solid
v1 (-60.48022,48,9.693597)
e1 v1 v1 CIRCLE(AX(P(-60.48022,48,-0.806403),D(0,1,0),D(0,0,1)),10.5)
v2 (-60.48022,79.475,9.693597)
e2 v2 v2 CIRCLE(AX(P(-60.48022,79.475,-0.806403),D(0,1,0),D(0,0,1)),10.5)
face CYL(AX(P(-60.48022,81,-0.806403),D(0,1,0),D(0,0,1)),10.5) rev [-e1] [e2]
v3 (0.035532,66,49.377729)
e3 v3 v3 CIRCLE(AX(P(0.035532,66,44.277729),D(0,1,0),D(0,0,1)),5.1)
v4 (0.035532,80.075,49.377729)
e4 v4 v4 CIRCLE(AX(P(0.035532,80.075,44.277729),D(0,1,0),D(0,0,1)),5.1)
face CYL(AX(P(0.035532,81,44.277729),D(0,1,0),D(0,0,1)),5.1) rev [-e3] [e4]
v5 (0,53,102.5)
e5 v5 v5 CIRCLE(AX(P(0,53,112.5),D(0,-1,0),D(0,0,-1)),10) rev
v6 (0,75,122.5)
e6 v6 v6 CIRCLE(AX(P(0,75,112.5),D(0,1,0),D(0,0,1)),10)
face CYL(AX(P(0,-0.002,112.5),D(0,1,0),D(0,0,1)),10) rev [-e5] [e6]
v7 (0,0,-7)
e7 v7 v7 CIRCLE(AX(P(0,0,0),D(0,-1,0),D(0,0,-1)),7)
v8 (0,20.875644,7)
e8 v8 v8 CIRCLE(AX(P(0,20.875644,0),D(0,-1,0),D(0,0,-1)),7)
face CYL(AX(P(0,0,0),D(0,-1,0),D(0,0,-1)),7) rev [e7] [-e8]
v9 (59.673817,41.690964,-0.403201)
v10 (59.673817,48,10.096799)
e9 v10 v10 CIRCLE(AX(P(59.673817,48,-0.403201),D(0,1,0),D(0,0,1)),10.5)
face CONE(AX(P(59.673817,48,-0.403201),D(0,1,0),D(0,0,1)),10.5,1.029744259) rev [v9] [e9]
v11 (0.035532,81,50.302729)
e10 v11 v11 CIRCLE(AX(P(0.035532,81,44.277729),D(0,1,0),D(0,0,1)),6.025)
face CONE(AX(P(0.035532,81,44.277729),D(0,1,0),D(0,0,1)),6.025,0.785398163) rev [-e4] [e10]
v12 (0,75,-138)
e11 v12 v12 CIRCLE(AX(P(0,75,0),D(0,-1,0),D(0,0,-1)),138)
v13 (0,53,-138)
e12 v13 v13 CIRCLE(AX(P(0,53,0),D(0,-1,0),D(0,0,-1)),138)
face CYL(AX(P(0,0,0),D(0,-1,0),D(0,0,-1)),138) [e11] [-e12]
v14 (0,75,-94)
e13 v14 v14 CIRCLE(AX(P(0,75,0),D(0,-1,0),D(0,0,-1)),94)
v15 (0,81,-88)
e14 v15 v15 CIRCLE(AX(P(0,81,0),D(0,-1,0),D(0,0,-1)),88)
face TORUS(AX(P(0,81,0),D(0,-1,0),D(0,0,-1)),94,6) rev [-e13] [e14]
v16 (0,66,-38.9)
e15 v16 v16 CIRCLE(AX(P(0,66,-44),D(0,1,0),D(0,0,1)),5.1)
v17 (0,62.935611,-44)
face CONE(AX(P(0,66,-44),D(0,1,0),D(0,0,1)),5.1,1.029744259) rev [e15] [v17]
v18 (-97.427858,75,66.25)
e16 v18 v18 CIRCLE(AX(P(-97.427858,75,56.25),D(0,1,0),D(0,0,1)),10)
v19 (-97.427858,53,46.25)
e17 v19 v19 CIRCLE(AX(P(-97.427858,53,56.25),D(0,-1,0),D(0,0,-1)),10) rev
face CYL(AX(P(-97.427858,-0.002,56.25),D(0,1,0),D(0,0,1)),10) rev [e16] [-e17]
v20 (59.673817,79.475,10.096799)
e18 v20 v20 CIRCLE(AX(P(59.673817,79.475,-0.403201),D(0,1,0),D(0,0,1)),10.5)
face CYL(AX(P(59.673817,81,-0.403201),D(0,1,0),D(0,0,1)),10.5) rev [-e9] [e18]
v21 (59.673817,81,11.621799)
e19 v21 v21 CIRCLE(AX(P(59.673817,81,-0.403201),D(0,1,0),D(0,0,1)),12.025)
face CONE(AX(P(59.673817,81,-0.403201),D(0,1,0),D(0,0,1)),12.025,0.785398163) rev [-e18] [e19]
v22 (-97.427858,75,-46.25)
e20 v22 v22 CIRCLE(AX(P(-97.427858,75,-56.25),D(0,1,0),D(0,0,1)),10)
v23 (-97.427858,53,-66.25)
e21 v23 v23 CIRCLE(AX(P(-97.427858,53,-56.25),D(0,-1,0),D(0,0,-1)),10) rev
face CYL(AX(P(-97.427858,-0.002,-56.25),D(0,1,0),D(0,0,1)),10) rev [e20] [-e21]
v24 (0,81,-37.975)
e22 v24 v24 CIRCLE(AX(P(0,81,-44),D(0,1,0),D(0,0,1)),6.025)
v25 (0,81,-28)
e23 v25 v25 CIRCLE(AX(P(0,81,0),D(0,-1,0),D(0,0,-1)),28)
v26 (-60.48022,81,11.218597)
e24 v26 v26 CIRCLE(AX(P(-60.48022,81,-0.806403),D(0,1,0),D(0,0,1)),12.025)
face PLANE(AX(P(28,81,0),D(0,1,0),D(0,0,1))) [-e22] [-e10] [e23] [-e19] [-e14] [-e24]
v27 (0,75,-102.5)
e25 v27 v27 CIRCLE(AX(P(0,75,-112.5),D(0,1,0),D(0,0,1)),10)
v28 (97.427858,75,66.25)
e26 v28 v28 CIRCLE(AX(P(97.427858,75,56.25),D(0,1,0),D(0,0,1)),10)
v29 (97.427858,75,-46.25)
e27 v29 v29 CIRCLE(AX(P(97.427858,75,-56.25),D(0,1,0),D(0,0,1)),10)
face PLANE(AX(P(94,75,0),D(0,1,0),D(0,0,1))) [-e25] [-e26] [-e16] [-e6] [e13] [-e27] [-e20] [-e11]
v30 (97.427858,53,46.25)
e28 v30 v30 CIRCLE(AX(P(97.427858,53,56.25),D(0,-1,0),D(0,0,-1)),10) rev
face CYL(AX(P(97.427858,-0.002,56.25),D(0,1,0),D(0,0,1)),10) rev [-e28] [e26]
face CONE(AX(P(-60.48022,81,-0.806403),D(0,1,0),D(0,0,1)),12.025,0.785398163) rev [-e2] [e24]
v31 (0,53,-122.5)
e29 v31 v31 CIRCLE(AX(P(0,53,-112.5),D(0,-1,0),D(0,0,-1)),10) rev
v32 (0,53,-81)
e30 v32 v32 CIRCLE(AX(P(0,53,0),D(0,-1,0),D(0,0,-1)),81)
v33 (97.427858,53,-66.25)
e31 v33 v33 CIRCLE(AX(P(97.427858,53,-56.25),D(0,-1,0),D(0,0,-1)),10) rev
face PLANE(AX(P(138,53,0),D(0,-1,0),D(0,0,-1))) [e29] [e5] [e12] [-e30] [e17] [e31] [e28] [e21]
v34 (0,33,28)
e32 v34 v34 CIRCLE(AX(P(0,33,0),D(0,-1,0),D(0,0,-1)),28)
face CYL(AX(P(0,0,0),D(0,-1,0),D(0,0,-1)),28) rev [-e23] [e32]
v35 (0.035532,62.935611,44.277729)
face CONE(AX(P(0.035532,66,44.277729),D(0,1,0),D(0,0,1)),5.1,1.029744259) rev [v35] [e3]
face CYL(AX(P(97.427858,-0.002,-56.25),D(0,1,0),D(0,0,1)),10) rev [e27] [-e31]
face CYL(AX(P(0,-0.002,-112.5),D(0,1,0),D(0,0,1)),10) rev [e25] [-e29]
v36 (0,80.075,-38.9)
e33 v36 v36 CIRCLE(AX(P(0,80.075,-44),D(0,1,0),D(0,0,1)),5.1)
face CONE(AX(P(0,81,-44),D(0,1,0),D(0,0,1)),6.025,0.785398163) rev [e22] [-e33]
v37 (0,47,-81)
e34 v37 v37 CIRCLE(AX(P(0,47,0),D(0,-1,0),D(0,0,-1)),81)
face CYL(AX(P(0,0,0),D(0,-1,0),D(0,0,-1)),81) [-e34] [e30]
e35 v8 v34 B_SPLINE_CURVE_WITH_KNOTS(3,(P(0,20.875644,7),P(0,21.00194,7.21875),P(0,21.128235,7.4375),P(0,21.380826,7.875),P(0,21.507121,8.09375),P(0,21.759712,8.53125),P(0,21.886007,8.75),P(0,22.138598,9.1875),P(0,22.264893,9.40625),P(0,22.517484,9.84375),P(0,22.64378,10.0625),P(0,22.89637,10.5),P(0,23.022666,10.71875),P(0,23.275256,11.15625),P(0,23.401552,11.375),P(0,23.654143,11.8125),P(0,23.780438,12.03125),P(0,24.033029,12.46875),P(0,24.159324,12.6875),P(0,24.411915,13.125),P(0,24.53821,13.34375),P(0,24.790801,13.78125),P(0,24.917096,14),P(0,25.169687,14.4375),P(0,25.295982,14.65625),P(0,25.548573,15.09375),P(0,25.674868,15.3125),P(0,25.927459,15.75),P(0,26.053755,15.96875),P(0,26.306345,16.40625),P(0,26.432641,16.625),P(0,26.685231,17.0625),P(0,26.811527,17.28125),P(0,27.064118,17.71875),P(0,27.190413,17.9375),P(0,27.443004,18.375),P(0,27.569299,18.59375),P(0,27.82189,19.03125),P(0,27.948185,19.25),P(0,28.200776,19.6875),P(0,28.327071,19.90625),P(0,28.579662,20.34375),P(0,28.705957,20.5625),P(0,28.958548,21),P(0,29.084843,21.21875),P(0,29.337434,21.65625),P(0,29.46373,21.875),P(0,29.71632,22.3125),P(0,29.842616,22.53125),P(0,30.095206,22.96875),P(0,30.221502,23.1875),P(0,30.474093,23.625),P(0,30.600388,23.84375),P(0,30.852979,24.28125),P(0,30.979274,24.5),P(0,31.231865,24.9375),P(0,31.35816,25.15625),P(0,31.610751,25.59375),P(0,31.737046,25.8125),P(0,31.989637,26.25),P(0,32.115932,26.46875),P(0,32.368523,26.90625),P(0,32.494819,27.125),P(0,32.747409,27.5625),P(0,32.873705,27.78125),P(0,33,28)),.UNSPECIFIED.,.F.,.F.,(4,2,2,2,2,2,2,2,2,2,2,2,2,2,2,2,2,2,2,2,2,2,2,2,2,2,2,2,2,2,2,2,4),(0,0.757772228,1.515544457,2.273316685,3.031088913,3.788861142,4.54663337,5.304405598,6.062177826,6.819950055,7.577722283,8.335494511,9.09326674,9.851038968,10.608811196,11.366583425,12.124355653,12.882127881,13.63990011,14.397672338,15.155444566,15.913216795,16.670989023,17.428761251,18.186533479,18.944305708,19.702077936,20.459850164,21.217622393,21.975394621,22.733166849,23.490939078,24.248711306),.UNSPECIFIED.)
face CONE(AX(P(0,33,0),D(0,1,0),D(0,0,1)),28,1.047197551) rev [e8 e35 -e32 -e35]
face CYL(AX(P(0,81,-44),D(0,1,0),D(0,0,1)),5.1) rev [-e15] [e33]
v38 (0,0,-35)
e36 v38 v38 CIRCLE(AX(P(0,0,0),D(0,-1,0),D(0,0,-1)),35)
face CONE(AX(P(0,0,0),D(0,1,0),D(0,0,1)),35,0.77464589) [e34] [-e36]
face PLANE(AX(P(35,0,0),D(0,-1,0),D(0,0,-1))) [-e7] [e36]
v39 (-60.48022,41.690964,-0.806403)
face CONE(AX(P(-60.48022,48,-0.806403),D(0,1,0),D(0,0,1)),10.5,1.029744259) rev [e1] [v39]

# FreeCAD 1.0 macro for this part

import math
import FreeCAD as App
import Part
import Sketcher
Q = App.Units.Quantity

doc = App.newDocument("Part")
body = doc.addObject("PartDesign::Body", "Body")

sketch1 = doc.addObject("Sketcher::SketchObject", "Sketch")
body.addObject(sketch1)
sketch1.AttachmentSupport = (doc.XY_Plane, [""])
sketch1.MapMode = "FlatFace"
sketch1.addGeometry(Part.LineSegment(App.Vector(7, 21, 0), App.Vector(7, 0, 0)), False)
sketch1.addGeometry(Part.LineSegment(App.Vector(7, 0, 0), App.Vector(35, 0, 0)), False)
sketch1.addGeometry(Part.LineSegment(App.Vector(35, 0, 0), App.Vector(81, 47, 0)), False)
sketch1.addGeometry(Part.LineSegment(App.Vector(81, 47, 0), App.Vector(81, 53, 0)), False)
sketch1.addGeometry(Part.LineSegment(App.Vector(81, 53, 0), App.Vector(138, 53, 0)), False)
sketch1.addGeometry(Part.LineSegment(App.Vector(138, 53, 0), App.Vector(138, 75, 0)), False)
sketch1.addGeometry(Part.LineSegment(App.Vector(138, 75, 0), App.Vector(94, 75, 0)), False)
sketch1.addGeometry(Part.ArcOfCircle(Part.Circle(App.Vector(94, 81, 0), App.Vector(0, 0, 1), 6), math.radians(180), math.radians(270)), False)
sketch1.addGeometry(Part.LineSegment(App.Vector(88, 81, 0), App.Vector(28, 81, 0)), False)
sketch1.addGeometry(Part.LineSegment(App.Vector(28, 81, 0), App.Vector(28, 33, 0)), False)
sketch1.addGeometry(Part.LineSegment(App.Vector(28, 33, 0), App.Vector(7, 21, 0)), False)
sketch1.addConstraint(Sketcher.Constraint("Coincident", 0, 2, 1, 1))
sketch1.addConstraint(Sketcher.Constraint("Coincident", 1, 2, 2, 1))
sketch1.addConstraint(Sketcher.Constraint("Coincident", 2, 2, 3, 1))
sketch1.addConstraint(Sketcher.Constraint("Coincident", 3, 2, 4, 1))
sketch1.addConstraint(Sketcher.Constraint("Coincident", 4, 2, 5, 1))
sketch1.addConstraint(Sketcher.Constraint("Coincident", 5, 2, 6, 1))
sketch1.addConstraint(Sketcher.Constraint("Tangent", 6, 2, 7, 2))
sketch1.addConstraint(Sketcher.Constraint("Coincident", 7, 1, 8, 1))
sketch1.addConstraint(Sketcher.Constraint("Coincident", 8, 2, 9, 1))
sketch1.addConstraint(Sketcher.Constraint("Coincident", 9, 2, 10, 1))
sketch1.addConstraint(Sketcher.Constraint("Coincident", 10, 2, 0, 1))
sketch1.addConstraint(Sketcher.Constraint("Vertical", 0))
sketch1.addConstraint(Sketcher.Constraint("Horizontal", 1))
sketch1.addConstraint(Sketcher.Constraint("Vertical", 3))
sketch1.addConstraint(Sketcher.Constraint("Horizontal", 4))
sketch1.addConstraint(Sketcher.Constraint("Vertical", 5))
sketch1.addConstraint(Sketcher.Constraint("Horizontal", 6))
sketch1.addConstraint(Sketcher.Constraint("Horizontal", 8))
sketch1.addConstraint(Sketcher.Constraint("Vertical", 9))
sketch1.addConstraint(Sketcher.Constraint("PointOnObject", 0, 2, -1))
sketch1.addConstraint(Sketcher.Constraint("Radius", 7, 6.0))
sketch1.addConstraint(Sketcher.Constraint("DistanceX", 1, 1, 1, 2, 28.0))
sketch1.addConstraint(Sketcher.Constraint("DistanceX", 4, 1, 4, 2, 57.0))
sketch1.addConstraint(Sketcher.Constraint("DistanceX", 6, 2, 6, 1, 44.0))
sketch1.addConstraint(Sketcher.Constraint("DistanceX", 8, 2, 8, 1, 60.0))
sketch1.addConstraint(Sketcher.Constraint("DistanceY", 3, 1, 3, 2, 6.0))
sketch1.addConstraint(Sketcher.Constraint("DistanceY", 5, 1, 5, 2, 22.0))
sketch1.addConstraint(Sketcher.Constraint("DistanceY", 9, 2, 9, 1, 48.0))
sketch1.addConstraint(Sketcher.Constraint("Angle", 10, Q("-150 deg")))
sketch1.addConstraint(Sketcher.Constraint("DistanceX", -1, 1, 7, 3, 94.0))
sketch1.addConstraint(Sketcher.Constraint("DistanceY", -1, 1, 7, 3, 81.0))
sketch1.addConstraint(Sketcher.Constraint("DistanceX", -1, 1, 0, 2, 7.0))
sketch1.addConstraint(Sketcher.Constraint("DistanceY", -1, 1, 7, 1, 81.0))
revolution = doc.addObject("PartDesign::Revolution", "Revolution")
body.addObject(revolution)
revolution.Profile = sketch1
revolution.ReferenceAxis = (sketch1, ["V_Axis"])
revolution.Angle = 360

sketch2 = doc.addObject("Sketcher::SketchObject", "Sketch001")
body.addObject(sketch2)
sketch2.AttachmentSupport = (doc.XZ_Plane, [""])
sketch2.MapMode = "FlatFace"
sketch2.AttachmentOffset = App.Placement(App.Vector(0, 0, -81), App.Rotation())
sketch2.addGeometry(Part.Circle(App.Vector(0, 44, 0), App.Vector(0, 0, 1), 5), False)
sketch2.addConstraint(Sketcher.Constraint("Diameter", 0, 10.2))
sketch2.addConstraint(Sketcher.Constraint("DistanceX", -1, 1, 0, 3, 0.035532))
sketch2.addConstraint(Sketcher.Constraint("DistanceY", -1, 1, 0, 3, 44.277729))
doc.recompute()
hole = doc.addObject("PartDesign::Hole", "Hole")
body.addObject(hole)
hole.Profile = sketch2
hole.ThreadType = "None"
hole.Diameter = 10.2
hole.DepthType = "Dimension"
hole.Depth = 15
hole.DrillPoint = "Angled"
hole.DrillPointAngle = 118
hole.HoleCutType = "Countersink"
hole.HoleCutDiameter = 12.05
hole.HoleCutCountersinkAngle = 90
hole.Reversed = True

sketch3 = doc.addObject("Sketcher::SketchObject", "Sketch002")
body.addObject(sketch3)
sketch3.AttachmentSupport = (doc.XZ_Plane, [""])
sketch3.MapMode = "FlatFace"
sketch3.AttachmentOffset = App.Placement(App.Vector(0, 0, -81), App.Rotation())
sketch3.addGeometry(Part.Circle(App.Vector(0, -44, 0), App.Vector(0, 0, 1), 5), False)
sketch3.addConstraint(Sketcher.Constraint("PointOnObject", 0, 3, -2))
sketch3.addConstraint(Sketcher.Constraint("Diameter", 0, 10.2))
sketch3.addConstraint(Sketcher.Constraint("DistanceY", 0, 3, -1, 1, 44.0))
doc.recompute()
hole2 = doc.addObject("PartDesign::Hole", "Hole001")
body.addObject(hole2)
hole2.Profile = sketch3
hole2.ThreadType = "None"
hole2.Diameter = 10.2
hole2.DepthType = "Dimension"
hole2.Depth = 15
hole2.DrillPoint = "Angled"
hole2.DrillPointAngle = 118
hole2.HoleCutType = "Countersink"
hole2.HoleCutDiameter = 12.05
hole2.HoleCutCountersinkAngle = 90
hole2.Reversed = True

sketch4 = doc.addObject("Sketcher::SketchObject", "Sketch003")
body.addObject(sketch4)
sketch4.AttachmentSupport = (doc.XZ_Plane, [""])
sketch4.MapMode = "FlatFace"
sketch4.AttachmentOffset = App.Placement(App.Vector(0, 0, -81), App.Rotation())
sketch4.addGeometry(Part.Circle(App.Vector(60, 0, 0), App.Vector(0, 0, 1), 10), False)
sketch4.addGeometry(Part.Circle(App.Vector(0, 0, 0), App.Vector(0, 0, 1), 10), False)
sketch4.addGeometry(Part.Circle(App.Vector(-60, -1, 0), App.Vector(0, 0, 1), 10), False)
sketch4.addConstraint(Sketcher.Constraint("Coincident", 1, 3, -1, 1))
sketch4.addConstraint(Sketcher.Constraint("Equal", 0, 1))
sketch4.addConstraint(Sketcher.Constraint("Equal", 1, 2))
sketch4.addConstraint(Sketcher.Constraint("Diameter", 0, 21.0))
sketch4.addConstraint(Sketcher.Constraint("DistanceY", 0, 3, -1, 1, 0.403201))
sketch4.addConstraint(Sketcher.Constraint("DistanceY", 2, 3, 0, 3, 0.403201))
sketch4.addConstraint(Sketcher.Constraint("DistanceX", 2, 3, -1, 1, 60.48022))
sketch4.addConstraint(Sketcher.Constraint("DistanceX", -1, 1, 0, 3, 59.673817))
doc.recompute()
hole3 = doc.addObject("PartDesign::Hole", "Hole002")
body.addObject(hole3)
hole3.Profile = sketch4
hole3.ThreadType = "None"
hole3.Diameter = 21
hole3.DepthType = "Dimension"
hole3.Depth = 33
hole3.DrillPoint = "Angled"
hole3.DrillPointAngle = 118
hole3.HoleCutType = "Countersink"
hole3.HoleCutDiameter = 24.05
hole3.HoleCutCountersinkAngle = 90
hole3.Reversed = True

sketch5 = doc.addObject("Sketcher::SketchObject", "Sketch004")
body.addObject(sketch5)
sketch5.AttachmentSupport = (doc.XZ_Plane, [""])
sketch5.MapMode = "FlatFace"
sketch5.AttachmentOffset = App.Placement(App.Vector(0, 0, -75), App.Rotation())
sketch5.addGeometry(Part.Circle(App.Vector(0, -112, 0), App.Vector(0, 0, 1), 10), False)
sketch5.addConstraint(Sketcher.Constraint("PointOnObject", 0, 3, -2))
sketch5.addConstraint(Sketcher.Constraint("Diameter", 0, 20.0))
sketch5.addConstraint(Sketcher.Constraint("DistanceY", 0, 3, -1, 1, 112.5))
pocket1 = doc.addObject("PartDesign::Pocket", "Pocket")
body.addObject(pocket1)
pocket1.Profile = sketch5
pocket1.Type = "UpToFirst"
pocket1.Reversed = True

sketch6 = doc.addObject("Sketcher::SketchObject", "Sketch005")
body.addObject(sketch6)
sketch6.AttachmentSupport = (doc.XZ_Plane, [""])
sketch6.MapMode = "FlatFace"
sketch6.AttachmentOffset = App.Placement(App.Vector(0, 0, -75), App.Rotation())
sketch6.addGeometry(Part.Circle(App.Vector(97, -56, 0), App.Vector(0, 0, 1), 10), False)
sketch6.addConstraint(Sketcher.Constraint("Diameter", 0, 20.0))
sketch6.addConstraint(Sketcher.Constraint("DistanceY", 0, 3, -1, 1, 56.25))
sketch6.addConstraint(Sketcher.Constraint("DistanceX", -1, 1, 0, 3, 97.427858))
pocket2 = doc.addObject("PartDesign::Pocket", "Pocket001")
body.addObject(pocket2)
pocket2.Profile = sketch6
pocket2.Type = "UpToFirst"
pocket2.Reversed = True

sketch7 = doc.addObject("Sketcher::SketchObject", "Sketch006")
body.addObject(sketch7)
sketch7.AttachmentSupport = (doc.XZ_Plane, [""])
sketch7.MapMode = "FlatFace"
sketch7.AttachmentOffset = App.Placement(App.Vector(0, 0, -75), App.Rotation())
sketch7.addGeometry(Part.Circle(App.Vector(97, 56, 0), App.Vector(0, 0, 1), 10), False)
sketch7.addConstraint(Sketcher.Constraint("Diameter", 0, 20.0))
sketch7.addConstraint(Sketcher.Constraint("DistanceY", -1, 1, 0, 3, 56.25))
sketch7.addConstraint(Sketcher.Constraint("DistanceX", -1, 1, 0, 3, 97.427858))
pocket3 = doc.addObject("PartDesign::Pocket", "Pocket002")
body.addObject(pocket3)
pocket3.Profile = sketch7
pocket3.Type = "UpToFirst"
pocket3.Reversed = True

sketch8 = doc.addObject("Sketcher::SketchObject", "Sketch007")
body.addObject(sketch8)
sketch8.AttachmentSupport = (doc.XZ_Plane, [""])
sketch8.MapMode = "FlatFace"
sketch8.AttachmentOffset = App.Placement(App.Vector(0, 0, -75), App.Rotation())
sketch8.addGeometry(Part.Circle(App.Vector(0, 112, 0), App.Vector(0, 0, 1), 10), False)
sketch8.addConstraint(Sketcher.Constraint("PointOnObject", 0, 3, -2))
sketch8.addConstraint(Sketcher.Constraint("Diameter", 0, 20.0))
sketch8.addConstraint(Sketcher.Constraint("DistanceY", -1, 1, 0, 3, 112.5))
pocket4 = doc.addObject("PartDesign::Pocket", "Pocket003")
body.addObject(pocket4)
pocket4.Profile = sketch8
pocket4.Type = "UpToFirst"
pocket4.Reversed = True

sketch9 = doc.addObject("Sketcher::SketchObject", "Sketch008")
body.addObject(sketch9)
sketch9.AttachmentSupport = (doc.XZ_Plane, [""])
sketch9.MapMode = "FlatFace"
sketch9.AttachmentOffset = App.Placement(App.Vector(0, 0, -75), App.Rotation())
sketch9.addGeometry(Part.Circle(App.Vector(-97, 56, 0), App.Vector(0, 0, 1), 10), False)
sketch9.addConstraint(Sketcher.Constraint("Diameter", 0, 20.0))
sketch9.addConstraint(Sketcher.Constraint("DistanceY", -1, 1, 0, 3, 56.25))
sketch9.addConstraint(Sketcher.Constraint("DistanceX", 0, 3, -1, 1, 97.427858))
pocket5 = doc.addObject("PartDesign::Pocket", "Pocket004")
body.addObject(pocket5)
pocket5.Profile = sketch9
pocket5.Type = "UpToFirst"
pocket5.Reversed = True

sketch10 = doc.addObject("Sketcher::SketchObject", "Sketch009")
body.addObject(sketch10)
sketch10.AttachmentSupport = (doc.XZ_Plane, [""])
sketch10.MapMode = "FlatFace"
sketch10.AttachmentOffset = App.Placement(App.Vector(0, 0, -75), App.Rotation())
sketch10.addGeometry(Part.Circle(App.Vector(-97, -56, 0), App.Vector(0, 0, 1), 10), False)
sketch10.addConstraint(Sketcher.Constraint("Diameter", 0, 20.0))
sketch10.addConstraint(Sketcher.Constraint("DistanceY", 0, 3, -1, 1, 56.25))
sketch10.addConstraint(Sketcher.Constraint("DistanceX", 0, 3, -1, 1, 97.427858))
pocket6 = doc.addObject("PartDesign::Pocket", "Pocket005")
body.addObject(pocket6)
pocket6.Profile = sketch10
pocket6.Type = "UpToFirst"
pocket6.Reversed = True

doc.recompute()
